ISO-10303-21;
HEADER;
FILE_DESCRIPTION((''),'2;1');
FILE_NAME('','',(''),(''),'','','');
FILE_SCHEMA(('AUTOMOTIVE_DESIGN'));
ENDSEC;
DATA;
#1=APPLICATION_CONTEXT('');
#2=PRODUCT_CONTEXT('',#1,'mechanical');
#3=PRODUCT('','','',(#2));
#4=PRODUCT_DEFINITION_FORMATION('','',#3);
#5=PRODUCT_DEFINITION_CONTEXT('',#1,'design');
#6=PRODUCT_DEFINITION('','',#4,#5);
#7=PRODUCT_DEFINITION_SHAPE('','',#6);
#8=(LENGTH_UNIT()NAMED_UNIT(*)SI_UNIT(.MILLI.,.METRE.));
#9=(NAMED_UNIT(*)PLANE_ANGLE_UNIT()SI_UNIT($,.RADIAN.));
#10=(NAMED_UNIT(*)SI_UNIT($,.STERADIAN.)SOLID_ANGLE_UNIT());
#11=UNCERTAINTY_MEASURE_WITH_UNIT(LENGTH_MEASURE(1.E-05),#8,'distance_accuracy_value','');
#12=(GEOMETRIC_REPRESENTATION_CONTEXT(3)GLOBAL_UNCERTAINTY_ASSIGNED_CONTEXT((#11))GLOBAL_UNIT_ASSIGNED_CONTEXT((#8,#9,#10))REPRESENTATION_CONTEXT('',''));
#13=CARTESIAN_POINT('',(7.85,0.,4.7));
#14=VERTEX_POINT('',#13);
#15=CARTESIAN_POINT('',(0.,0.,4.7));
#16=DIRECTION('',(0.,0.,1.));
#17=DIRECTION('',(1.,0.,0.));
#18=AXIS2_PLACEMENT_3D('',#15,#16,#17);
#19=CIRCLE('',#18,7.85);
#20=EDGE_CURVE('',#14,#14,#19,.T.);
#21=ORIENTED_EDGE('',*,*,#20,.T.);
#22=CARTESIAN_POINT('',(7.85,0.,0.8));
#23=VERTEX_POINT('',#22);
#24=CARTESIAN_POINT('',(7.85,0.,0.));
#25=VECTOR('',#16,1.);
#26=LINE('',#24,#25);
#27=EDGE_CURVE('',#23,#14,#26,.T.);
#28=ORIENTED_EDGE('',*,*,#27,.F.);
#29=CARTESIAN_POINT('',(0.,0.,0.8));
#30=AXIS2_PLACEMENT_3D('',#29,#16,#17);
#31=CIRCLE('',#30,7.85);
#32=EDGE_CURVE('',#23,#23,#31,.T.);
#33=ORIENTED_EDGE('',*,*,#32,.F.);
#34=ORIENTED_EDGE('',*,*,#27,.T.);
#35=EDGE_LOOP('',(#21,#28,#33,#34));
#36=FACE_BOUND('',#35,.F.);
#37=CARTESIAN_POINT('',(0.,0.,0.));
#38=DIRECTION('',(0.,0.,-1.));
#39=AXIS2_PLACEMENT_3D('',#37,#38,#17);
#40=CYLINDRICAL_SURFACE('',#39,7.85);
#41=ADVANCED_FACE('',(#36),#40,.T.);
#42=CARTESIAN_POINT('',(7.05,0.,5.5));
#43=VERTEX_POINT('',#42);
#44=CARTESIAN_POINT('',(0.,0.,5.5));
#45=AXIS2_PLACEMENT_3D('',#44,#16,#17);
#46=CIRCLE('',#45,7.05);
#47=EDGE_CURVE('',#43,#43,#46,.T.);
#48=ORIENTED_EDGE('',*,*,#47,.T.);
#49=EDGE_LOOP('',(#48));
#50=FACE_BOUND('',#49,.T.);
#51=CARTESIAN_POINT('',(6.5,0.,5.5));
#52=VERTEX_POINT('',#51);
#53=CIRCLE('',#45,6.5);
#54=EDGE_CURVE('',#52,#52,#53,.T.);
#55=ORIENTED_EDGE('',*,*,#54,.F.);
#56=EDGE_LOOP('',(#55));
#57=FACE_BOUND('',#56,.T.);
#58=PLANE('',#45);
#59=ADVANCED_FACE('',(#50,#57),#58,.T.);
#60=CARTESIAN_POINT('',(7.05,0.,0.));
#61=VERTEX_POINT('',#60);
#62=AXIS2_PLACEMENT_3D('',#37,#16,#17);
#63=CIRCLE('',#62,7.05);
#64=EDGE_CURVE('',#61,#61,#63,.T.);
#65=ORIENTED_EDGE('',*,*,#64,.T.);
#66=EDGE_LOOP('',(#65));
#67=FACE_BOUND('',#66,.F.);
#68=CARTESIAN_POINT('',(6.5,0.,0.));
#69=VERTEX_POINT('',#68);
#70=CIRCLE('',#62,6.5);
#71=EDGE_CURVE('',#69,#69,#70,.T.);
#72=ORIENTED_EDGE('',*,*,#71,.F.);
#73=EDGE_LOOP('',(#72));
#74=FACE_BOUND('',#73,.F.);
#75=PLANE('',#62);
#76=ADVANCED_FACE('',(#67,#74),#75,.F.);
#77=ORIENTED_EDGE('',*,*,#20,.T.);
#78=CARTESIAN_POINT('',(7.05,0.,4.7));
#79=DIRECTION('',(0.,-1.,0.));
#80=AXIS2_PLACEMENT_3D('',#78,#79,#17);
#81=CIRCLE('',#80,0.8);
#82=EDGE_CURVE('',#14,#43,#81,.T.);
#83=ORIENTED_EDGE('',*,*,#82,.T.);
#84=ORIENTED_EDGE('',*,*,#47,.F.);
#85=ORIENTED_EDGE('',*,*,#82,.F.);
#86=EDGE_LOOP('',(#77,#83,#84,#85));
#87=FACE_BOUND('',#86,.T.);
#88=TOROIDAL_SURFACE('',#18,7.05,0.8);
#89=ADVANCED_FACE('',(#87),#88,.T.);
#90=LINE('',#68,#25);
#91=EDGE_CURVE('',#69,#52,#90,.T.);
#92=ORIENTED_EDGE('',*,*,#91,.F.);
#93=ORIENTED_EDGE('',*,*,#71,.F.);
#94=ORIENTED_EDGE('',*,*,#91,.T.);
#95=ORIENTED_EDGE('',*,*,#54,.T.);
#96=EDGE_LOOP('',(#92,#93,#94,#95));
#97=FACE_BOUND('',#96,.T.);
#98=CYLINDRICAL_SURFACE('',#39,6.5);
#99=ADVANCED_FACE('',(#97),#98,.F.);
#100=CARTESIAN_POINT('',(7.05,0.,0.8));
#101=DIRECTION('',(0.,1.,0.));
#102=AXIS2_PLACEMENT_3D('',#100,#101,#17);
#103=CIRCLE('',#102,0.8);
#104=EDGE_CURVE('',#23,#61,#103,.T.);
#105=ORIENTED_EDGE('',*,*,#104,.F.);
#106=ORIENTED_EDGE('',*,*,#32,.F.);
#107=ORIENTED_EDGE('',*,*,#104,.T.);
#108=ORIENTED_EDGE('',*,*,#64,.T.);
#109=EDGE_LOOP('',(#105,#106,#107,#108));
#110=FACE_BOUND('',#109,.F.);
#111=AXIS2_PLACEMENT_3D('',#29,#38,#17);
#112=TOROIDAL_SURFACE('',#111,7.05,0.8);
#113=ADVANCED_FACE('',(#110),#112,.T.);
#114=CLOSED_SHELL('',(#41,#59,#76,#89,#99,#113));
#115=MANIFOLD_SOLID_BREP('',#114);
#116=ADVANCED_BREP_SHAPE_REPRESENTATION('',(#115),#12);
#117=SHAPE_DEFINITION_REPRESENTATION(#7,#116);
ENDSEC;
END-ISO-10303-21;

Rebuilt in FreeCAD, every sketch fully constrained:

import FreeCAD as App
import Part
import Sketcher
from FreeCAD import Vector


def edges_at(feature, points):
    """Names of the edges that pass closest to the given points."""
    edges = feature.Shape.Edges
    near = lambda p: min(range(len(edges)), key=lambda i: edges[i].distToShape(Part.Vertex(*p))[0])
    return sorted({f"Edge{near(p) + 1}" for p in points})

doc = App.newDocument("Part")
body = doc.addObject("PartDesign::Body", "Body")

# Sketch on XY plane
sketch1 = body.newObject("Sketcher::SketchObject", "Sketch")
sketch1.AttachmentSupport = (doc.getObject("XY_Plane"), [""])
sketch1.MapMode = "FlatFace"
sketch1.addGeometry([
    Part.Circle(Vector(0, 0, 0), Vector(0, 0, 1), 8),
    Part.Circle(Vector(0, 0, 0), Vector(0, 0, 1), 6),
], False)
sketch1.addConstraint([
    Sketcher.Constraint("Coincident", 0, 3, -1, 1),
    Sketcher.Constraint("Coincident", 1, 3, -1, 1),
    Sketcher.Constraint("Diameter", 1, 13.0),
    Sketcher.Constraint("Diameter", 0, 15.7),
])
pad1 = body.newObject("PartDesign::Pad", "Pad")
pad1.Profile = sketch1
pad1.Length = 5.5
doc.recompute()

fillet = body.newObject("PartDesign::Fillet", "Fillet")
fillet.Base = (pad1, edges_at(pad1, [(7.85, 0, 2.75), (-7.85, 0, 0), (-7.85, 0, 5.5)]))
fillet.Radius = 0.8

doc.recompute()
